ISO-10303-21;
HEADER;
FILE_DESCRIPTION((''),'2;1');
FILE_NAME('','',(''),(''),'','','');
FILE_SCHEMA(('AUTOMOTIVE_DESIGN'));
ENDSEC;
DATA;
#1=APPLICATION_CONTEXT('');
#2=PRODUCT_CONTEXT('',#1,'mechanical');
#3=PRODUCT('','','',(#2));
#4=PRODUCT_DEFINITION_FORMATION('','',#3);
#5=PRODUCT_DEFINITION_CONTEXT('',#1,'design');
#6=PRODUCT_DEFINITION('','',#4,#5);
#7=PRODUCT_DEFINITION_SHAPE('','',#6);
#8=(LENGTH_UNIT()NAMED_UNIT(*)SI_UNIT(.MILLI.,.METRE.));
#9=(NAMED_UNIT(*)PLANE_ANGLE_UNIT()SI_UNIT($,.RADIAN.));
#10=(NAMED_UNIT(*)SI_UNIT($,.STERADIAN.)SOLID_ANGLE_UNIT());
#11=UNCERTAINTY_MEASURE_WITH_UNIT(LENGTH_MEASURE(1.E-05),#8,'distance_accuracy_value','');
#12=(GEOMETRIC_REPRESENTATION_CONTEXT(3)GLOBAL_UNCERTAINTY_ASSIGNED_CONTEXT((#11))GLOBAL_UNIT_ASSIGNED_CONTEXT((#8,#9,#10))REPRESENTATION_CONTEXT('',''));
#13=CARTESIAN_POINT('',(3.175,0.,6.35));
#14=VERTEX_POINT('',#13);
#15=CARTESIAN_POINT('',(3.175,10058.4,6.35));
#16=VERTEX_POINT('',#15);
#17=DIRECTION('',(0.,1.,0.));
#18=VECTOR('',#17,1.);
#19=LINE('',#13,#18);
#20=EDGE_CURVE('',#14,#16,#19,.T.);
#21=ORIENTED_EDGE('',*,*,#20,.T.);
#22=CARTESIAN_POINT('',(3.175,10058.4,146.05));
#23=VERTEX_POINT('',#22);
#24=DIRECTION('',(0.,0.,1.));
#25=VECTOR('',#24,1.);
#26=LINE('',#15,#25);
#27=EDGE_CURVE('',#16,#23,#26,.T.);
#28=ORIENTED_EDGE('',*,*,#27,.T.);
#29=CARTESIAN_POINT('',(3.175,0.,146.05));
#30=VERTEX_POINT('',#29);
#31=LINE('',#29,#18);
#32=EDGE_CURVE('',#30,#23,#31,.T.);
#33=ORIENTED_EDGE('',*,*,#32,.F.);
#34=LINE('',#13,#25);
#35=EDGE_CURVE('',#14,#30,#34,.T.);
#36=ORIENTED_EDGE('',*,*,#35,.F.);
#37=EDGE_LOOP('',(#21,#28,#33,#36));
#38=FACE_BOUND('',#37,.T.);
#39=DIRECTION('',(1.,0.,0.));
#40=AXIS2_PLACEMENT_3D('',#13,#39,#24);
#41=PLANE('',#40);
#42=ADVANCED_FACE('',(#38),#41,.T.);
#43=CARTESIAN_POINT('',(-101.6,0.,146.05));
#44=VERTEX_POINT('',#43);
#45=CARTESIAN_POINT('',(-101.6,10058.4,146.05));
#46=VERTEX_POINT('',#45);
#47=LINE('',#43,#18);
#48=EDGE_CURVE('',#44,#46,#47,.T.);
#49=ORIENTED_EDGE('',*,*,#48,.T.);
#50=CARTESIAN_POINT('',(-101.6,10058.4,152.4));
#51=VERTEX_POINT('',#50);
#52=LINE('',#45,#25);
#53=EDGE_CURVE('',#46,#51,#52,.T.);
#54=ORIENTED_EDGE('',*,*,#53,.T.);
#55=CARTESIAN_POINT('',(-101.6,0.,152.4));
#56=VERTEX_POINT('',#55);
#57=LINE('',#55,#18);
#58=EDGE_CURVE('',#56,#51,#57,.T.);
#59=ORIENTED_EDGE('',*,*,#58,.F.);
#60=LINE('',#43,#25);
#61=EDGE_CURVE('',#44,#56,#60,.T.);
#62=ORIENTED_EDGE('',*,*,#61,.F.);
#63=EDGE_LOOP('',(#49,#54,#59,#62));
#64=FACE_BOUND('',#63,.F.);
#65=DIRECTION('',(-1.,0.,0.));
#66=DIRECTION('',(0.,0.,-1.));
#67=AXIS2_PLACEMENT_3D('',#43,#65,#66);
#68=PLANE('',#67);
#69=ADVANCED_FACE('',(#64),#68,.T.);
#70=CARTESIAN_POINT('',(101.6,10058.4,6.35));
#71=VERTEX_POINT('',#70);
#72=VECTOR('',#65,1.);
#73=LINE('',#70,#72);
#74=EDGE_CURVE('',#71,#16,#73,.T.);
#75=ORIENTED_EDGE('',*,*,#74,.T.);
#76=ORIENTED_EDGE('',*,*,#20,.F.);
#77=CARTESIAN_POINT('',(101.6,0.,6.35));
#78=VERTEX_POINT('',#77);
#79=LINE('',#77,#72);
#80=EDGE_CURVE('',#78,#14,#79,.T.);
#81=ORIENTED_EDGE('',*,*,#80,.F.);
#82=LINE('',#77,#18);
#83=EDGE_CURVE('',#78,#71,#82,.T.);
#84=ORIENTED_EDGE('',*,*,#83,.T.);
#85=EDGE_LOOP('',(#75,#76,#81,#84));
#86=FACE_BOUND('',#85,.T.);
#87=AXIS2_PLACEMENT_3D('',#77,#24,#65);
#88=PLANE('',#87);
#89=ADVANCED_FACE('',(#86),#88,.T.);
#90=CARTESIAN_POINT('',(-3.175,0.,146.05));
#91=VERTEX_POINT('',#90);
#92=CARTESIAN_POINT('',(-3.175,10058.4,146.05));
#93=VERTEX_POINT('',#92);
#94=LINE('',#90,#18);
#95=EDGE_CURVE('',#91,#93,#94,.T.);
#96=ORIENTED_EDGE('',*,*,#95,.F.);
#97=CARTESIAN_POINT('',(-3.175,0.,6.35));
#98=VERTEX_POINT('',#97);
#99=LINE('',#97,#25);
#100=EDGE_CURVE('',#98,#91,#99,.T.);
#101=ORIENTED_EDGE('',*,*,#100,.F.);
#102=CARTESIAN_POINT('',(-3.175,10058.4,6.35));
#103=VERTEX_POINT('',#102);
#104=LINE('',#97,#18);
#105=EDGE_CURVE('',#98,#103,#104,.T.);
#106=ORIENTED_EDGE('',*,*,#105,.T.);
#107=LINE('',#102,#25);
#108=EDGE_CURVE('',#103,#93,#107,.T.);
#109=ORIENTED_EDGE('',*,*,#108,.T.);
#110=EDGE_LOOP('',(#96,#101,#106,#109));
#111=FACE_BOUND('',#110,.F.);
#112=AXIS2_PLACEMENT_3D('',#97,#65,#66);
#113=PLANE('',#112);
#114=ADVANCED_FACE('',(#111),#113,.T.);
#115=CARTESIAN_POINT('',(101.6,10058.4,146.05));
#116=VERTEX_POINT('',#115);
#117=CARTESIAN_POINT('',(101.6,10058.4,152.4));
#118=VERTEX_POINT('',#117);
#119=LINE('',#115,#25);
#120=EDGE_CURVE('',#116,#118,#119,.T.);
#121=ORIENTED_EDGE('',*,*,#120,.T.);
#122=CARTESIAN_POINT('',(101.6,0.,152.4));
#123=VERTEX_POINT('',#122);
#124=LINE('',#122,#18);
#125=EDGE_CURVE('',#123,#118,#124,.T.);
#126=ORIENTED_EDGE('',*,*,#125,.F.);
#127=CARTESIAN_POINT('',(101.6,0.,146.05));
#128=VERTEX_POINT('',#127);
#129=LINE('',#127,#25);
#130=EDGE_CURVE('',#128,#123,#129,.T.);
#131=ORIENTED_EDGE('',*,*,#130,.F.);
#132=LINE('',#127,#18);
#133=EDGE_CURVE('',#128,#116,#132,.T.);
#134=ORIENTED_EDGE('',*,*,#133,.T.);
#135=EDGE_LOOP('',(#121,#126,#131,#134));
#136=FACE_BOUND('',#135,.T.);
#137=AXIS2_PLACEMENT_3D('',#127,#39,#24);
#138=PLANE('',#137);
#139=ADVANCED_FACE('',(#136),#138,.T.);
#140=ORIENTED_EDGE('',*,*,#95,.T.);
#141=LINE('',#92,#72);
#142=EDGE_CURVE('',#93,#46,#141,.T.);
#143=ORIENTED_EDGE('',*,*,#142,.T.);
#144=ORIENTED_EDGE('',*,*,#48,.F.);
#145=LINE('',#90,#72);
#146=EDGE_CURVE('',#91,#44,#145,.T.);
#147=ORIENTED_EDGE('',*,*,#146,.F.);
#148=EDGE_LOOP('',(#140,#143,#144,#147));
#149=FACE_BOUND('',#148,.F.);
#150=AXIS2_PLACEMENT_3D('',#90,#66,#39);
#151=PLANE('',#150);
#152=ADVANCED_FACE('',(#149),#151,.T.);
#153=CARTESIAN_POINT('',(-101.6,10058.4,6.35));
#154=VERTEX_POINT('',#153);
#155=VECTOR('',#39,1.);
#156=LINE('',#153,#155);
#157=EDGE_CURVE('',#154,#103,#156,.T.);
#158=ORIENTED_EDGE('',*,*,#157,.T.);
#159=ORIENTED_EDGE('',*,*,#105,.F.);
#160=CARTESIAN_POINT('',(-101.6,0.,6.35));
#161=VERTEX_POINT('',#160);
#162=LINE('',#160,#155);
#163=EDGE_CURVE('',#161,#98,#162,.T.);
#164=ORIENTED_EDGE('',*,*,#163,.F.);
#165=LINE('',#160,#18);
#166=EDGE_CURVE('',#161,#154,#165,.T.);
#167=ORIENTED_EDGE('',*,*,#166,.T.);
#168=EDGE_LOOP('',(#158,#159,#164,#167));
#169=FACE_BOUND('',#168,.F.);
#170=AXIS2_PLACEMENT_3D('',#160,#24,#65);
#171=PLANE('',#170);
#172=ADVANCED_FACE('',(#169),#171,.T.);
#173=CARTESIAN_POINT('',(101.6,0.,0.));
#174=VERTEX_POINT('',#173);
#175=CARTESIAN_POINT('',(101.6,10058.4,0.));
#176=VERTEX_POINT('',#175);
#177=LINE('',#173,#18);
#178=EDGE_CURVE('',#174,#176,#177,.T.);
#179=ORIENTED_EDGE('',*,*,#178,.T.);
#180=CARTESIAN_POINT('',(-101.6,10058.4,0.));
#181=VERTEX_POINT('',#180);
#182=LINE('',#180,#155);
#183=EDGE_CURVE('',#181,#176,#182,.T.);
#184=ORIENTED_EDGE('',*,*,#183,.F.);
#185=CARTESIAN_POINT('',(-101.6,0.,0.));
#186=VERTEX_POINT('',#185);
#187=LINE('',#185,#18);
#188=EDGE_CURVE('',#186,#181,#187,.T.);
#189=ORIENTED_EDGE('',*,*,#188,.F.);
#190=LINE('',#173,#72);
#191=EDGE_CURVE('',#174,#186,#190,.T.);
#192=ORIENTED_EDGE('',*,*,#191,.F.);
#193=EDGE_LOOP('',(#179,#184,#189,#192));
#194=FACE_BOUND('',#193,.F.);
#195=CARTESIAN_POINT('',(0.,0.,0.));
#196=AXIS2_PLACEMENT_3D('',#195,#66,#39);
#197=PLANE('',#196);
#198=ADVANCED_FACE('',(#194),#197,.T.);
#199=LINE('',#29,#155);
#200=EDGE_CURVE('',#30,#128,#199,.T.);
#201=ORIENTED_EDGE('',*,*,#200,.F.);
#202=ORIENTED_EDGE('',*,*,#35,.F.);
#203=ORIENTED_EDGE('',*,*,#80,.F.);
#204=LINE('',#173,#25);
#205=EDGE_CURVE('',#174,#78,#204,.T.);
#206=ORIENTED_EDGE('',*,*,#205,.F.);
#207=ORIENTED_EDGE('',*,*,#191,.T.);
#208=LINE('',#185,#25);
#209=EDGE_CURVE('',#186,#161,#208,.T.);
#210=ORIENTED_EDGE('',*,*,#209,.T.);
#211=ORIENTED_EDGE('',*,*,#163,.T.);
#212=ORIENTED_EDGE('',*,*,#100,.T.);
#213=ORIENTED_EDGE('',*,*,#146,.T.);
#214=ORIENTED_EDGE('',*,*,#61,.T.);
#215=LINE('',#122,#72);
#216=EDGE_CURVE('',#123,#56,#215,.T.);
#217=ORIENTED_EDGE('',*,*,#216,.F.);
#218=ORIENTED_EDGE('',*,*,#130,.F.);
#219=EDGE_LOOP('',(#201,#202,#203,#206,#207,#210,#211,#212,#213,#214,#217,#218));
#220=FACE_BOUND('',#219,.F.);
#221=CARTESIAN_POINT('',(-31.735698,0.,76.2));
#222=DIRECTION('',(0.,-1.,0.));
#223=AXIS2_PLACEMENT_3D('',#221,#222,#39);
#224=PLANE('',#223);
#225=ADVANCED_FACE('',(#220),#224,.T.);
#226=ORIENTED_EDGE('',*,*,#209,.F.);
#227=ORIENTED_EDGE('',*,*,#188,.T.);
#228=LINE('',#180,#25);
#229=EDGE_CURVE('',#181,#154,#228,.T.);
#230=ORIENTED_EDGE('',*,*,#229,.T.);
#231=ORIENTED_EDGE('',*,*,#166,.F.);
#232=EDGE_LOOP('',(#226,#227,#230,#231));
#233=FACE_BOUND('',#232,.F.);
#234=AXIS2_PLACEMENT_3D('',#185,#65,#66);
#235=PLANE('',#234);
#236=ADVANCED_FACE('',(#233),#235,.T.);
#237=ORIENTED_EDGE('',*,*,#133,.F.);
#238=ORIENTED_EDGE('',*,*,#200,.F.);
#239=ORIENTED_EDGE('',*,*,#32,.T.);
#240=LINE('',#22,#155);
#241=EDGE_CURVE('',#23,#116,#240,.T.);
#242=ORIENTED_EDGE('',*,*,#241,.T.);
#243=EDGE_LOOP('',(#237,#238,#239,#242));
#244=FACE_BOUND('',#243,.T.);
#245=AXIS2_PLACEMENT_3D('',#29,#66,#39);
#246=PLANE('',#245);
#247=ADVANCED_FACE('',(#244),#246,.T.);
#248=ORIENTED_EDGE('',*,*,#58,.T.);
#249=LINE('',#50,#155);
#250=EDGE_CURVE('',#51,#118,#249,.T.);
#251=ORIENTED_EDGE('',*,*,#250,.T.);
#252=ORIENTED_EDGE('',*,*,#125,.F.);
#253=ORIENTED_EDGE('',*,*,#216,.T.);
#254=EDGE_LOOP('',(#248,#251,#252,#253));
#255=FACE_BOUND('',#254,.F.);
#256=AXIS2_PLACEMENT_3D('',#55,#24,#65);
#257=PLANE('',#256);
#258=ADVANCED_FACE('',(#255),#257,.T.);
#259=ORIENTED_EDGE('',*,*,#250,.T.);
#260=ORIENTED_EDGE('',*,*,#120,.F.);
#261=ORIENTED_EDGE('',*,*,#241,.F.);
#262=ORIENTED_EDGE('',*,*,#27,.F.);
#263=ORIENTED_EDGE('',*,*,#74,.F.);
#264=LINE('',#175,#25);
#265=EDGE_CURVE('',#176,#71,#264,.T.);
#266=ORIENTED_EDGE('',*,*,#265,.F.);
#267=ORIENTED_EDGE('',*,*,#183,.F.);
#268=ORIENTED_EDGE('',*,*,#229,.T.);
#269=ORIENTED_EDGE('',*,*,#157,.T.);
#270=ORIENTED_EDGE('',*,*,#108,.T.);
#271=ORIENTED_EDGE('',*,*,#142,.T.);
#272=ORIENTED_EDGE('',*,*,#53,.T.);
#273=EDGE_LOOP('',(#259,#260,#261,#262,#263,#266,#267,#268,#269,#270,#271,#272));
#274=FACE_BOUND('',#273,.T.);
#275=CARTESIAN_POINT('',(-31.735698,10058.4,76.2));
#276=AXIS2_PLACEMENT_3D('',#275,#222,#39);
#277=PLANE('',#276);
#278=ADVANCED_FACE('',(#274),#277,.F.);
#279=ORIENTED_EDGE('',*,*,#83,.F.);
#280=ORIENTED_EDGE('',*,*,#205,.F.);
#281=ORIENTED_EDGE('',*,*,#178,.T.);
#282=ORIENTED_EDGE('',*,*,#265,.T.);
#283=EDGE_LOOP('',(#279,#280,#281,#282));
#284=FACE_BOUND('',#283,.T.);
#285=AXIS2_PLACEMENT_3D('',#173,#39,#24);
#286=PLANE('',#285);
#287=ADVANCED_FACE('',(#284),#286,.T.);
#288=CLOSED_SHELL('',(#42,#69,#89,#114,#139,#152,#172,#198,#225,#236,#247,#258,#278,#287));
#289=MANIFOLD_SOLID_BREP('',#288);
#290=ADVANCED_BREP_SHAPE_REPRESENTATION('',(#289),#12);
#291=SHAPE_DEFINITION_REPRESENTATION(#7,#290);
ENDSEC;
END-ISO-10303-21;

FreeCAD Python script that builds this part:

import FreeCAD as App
import Part
import Sketcher

V = App.Vector
Q = App.Units.Quantity


def add_polygon(sketch, points):
    """Adds a closed chain of lines whose ends are joined by coincident constraints."""
    first, n = sketch.GeometryCount, len(points)
    for a, b in zip(points, points[1:] + points[:1]):
        sketch.addGeometry(Part.LineSegment(App.Vector(*a, 0), App.Vector(*b, 0)), False)
    for i in range(n):
        sketch.addConstraint(Sketcher.Constraint("Coincident", first + i, 2, first + (i + 1) % n, 1))

doc = App.newDocument("Part")
body = doc.addObject("PartDesign::Body", "Body")

# Sketch on XZ plane
sketch1 = body.newObject("Sketcher::SketchObject", "Sketch")
sketch1.AttachmentSupport = (doc.getObject("XZ_Plane"), [""])
sketch1.MapMode = "FlatFace"
add_polygon(sketch1, [(0, 152), (0, 0), (102, 0), (102, 6), (3, 6), (3, 146), (102, 146), (102, 152)])  # lines 0-7
sketch1.addConstraint([
    Sketcher.Constraint("Vertical", 0),
    Sketcher.Constraint("Horizontal", 1),
    Sketcher.Constraint("Vertical", 2),
    Sketcher.Constraint("Horizontal", 3),
    Sketcher.Constraint("Vertical", 4),
    Sketcher.Constraint("Horizontal", 5),
    Sketcher.Constraint("Vertical", 6),
    Sketcher.Constraint("Horizontal", 7),
    Sketcher.Constraint("Coincident", 0, 2, -1, 1),
    Sketcher.Constraint("Vertical", 2, 2, 5, 2),
    Sketcher.Constraint("Equal", 2, 6),
    Sketcher.Constraint("DistanceX", 1, 1, 1, 2, Q("4 in")),
    Sketcher.Constraint("DistanceY", 0, 2, 0, 1, Q("6 in")),
    Sketcher.Constraint("DistanceY", 4, 1, 4, 2, Q("5.5 in")),
    Sketcher.Constraint("DistanceX", 3, 2, 3, 1, Q("3.875 in")),
])
pad1 = body.newObject("PartDesign::Pad", "Pad")
pad1.Profile = sketch1
pad1.Length = Q("396 in")
pad1.Reversed = True
body2 = doc.addObject("PartDesign::Body", "Body001")
doc.recompute()

body2.BaseFeature = body
doc.recompute()

mirroring = doc.addObject("Part::Mirroring", "Mirroring")
mirroring.Source = body
mirroring.Base = V(0, 5029.2, 76.2)
mirroring.Normal = V(-1, 0, 0)
body3 = doc.addObject("PartDesign::Body", "Body002")
body3.BaseFeature = mirroring
boolean = body2.newObject("PartDesign::Boolean", "Boolean")
boolean.Type = "Fuse"
boolean.addObjects([body3])
doc.recompute()
mirroring.Visibility = False

doc.recompute()
